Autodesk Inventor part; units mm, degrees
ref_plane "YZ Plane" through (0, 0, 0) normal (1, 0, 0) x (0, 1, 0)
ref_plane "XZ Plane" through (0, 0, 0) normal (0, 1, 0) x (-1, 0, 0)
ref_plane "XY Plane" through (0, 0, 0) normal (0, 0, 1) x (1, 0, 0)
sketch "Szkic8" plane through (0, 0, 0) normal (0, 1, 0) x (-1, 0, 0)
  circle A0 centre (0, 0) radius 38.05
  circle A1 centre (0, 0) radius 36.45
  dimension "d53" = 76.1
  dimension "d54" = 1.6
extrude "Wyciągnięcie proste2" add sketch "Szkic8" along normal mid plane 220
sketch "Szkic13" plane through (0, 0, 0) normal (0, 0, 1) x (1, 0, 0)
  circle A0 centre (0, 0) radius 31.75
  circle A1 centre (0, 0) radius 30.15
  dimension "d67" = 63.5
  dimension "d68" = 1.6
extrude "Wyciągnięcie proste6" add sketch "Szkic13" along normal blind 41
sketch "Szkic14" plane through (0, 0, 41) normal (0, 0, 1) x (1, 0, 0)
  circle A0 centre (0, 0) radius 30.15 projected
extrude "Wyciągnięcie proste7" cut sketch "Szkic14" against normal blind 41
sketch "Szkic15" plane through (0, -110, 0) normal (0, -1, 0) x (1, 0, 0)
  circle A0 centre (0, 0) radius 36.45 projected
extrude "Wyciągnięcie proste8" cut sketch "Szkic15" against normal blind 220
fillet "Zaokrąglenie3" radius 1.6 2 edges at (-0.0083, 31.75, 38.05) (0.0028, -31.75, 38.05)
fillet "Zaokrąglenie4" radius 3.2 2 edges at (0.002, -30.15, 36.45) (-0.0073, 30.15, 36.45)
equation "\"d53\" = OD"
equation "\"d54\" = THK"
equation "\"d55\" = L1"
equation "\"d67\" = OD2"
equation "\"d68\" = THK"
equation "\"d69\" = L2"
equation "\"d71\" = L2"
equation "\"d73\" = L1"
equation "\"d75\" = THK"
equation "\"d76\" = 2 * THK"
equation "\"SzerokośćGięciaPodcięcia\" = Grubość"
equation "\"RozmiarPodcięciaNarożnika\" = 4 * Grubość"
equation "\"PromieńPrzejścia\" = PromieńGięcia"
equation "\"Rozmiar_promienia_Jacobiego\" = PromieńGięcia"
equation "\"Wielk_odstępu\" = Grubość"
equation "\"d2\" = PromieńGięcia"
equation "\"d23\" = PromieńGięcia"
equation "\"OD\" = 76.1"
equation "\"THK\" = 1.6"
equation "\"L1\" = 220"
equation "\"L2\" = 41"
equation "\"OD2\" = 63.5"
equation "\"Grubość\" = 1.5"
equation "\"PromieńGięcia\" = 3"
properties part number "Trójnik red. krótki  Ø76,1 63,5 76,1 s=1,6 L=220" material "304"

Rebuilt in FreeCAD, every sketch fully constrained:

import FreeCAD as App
import Part
import Sketcher

V = App.Vector
Q = App.Units.Quantity


def edges_at(feature, points):
    """Names of the edges that pass closest to the given points."""
    edges = feature.Shape.Edges
    near = lambda p: min(range(len(edges)), key=lambda i: edges[i].distToShape(Part.Vertex(*p))[0])
    return sorted({f"Edge{near(p) + 1}" for p in points})

doc = App.newDocument("Part")
body = doc.addObject("PartDesign::Body", "Body")

# Sketch on XZ plane
sketch1 = doc.addObject("Sketcher::SketchObject", "Sketch")
body.addObject(sketch1)
sketch1.AttachmentSupport = (doc.XZ_Plane, [""])
sketch1.MapMode = "FlatFace"
sketch1.addGeometry([
    Part.Circle(V(0, 0, 0), V(0, 0, 1), 38),
    Part.Circle(V(0, 0, 0), V(0, 0, 1), 36),
], False)
sketch1.addConstraint([
    Sketcher.Constraint("Coincident", 0, 3, -1, 1),
    Sketcher.Constraint("Coincident", 1, 3, -1, 1),
    Sketcher.Constraint("Diameter", 0, Q("76.1 mm")),
    Sketcher.Constraint("Diameter", 1, Q("72.9 mm")),
])
pad1 = doc.addObject("PartDesign::Pad", "Pad")
body.addObject(pad1)
pad1.Profile = sketch1
pad1.Length = 220
pad1.Midplane = True

# Sketch on XY plane
sketch2 = doc.addObject("Sketcher::SketchObject", "Sketch001")
body.addObject(sketch2)
sketch2.AttachmentSupport = (doc.XY_Plane, [""])
sketch2.MapMode = "FlatFace"
sketch2.addGeometry([
    Part.Circle(V(0, 0, 0), V(0, 0, 1), 32),
    Part.Circle(V(0, 0, 0), V(0, 0, 1), 30),
], False)
sketch2.addConstraint([
    Sketcher.Constraint("Coincident", 0, 3, -1, 1),
    Sketcher.Constraint("Coincident", 1, 3, -1, 1),
    Sketcher.Constraint("Diameter", 0, Q("63.5 mm")),
    Sketcher.Constraint("Diameter", 1, Q("60.3 mm")),
])
pad2 = doc.addObject("PartDesign::Pad", "Pad001")
body.addObject(pad2)
pad2.Profile = sketch2
pad2.Length = 41

# Sketch on XY plane
sketch3 = doc.addObject("Sketcher::SketchObject", "Sketch002")
body.addObject(sketch3)
sketch3.AttachmentSupport = (doc.XY_Plane, [""])
sketch3.MapMode = "FlatFace"
sketch3.AttachmentOffset = App.Placement(V(0, 0, 41), App.Rotation())
sketch3.addGeometry(Part.Circle(V(0, 0, 0), V(0, 0, 1), 30), False)
sketch3.addConstraint([
    Sketcher.Constraint("Coincident", 0, 3, -1, 1),
    Sketcher.Constraint("Diameter", 0, Q("60.3 mm")),
])
pocket1 = doc.addObject("PartDesign::Pocket", "Pocket")
body.addObject(pocket1)
pocket1.Profile = sketch3
pocket1.Length = 41

# Sketch on XZ plane
sketch4 = doc.addObject("Sketcher::SketchObject", "Sketch003")
body.addObject(sketch4)
sketch4.AttachmentSupport = (doc.XZ_Plane, [""])
sketch4.MapMode = "FlatFace"
sketch4.AttachmentOffset = App.Placement(V(0, 0, 110), App.Rotation())
sketch4.addGeometry(Part.Circle(V(0, 0, 0), V(0, 0, 1), 36), False)
sketch4.addConstraint([
    Sketcher.Constraint("Coincident", 0, 3, -1, 1),
    Sketcher.Constraint("Diameter", 0, Q("72.9 mm")),
])
pocket2 = doc.addObject("PartDesign::Pocket", "Pocket001")
body.addObject(pocket2)
pocket2.Profile = sketch4
pocket2.Length = 220
doc.recompute()

fillet = doc.addObject("PartDesign::Fillet", "Fillet")
body.addObject(fillet)
fillet.Base = (pocket2, edges_at(pocket2, [(-0.008, 31.75, 38.05), (0.003, -31.75, 38.05)]))
fillet.Radius = 1.6
doc.recompute()

fillet2 = doc.addObject("PartDesign::Fillet", "Fillet001")
body.addObject(fillet2)
fillet2.Base = (fillet, edges_at(fillet, [(0.002, -30.15, 36.45), (-0.007, 30.15, 36.45)]))
fillet2.Radius = 3.2

doc.recompute()
